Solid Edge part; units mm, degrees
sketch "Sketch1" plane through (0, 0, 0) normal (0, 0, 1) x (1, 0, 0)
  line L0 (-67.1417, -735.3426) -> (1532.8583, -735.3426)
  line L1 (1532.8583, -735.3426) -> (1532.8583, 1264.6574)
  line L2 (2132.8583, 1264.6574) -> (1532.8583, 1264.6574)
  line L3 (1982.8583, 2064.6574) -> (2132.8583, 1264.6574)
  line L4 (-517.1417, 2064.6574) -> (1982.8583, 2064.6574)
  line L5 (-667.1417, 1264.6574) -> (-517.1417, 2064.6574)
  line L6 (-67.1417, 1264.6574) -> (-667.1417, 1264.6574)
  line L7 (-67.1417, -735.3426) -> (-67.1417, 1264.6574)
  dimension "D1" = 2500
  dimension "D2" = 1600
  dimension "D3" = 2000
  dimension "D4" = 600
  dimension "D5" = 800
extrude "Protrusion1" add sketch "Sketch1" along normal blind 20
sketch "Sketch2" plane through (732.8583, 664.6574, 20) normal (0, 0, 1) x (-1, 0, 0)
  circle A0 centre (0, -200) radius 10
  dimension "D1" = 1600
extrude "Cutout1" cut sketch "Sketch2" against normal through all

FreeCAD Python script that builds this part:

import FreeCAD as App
import Part
import Sketcher

V = App.Vector

doc = App.newDocument("Part")
body = doc.addObject("PartDesign::Body", "Body")

sketch1 = doc.addObject("Sketcher::SketchObject", "Sketch")
body.addObject(sketch1)
sketch1.AttachmentSupport = (doc.XY_Plane, [""])
sketch1.MapMode = "FlatFace"
sketch1.addGeometry([
    Part.LineSegment(V(-67, 1265, 0), V(-67, -735, 0)),
    Part.LineSegment(V(-67, -735, 0), V(1533, -735, 0)),
    Part.LineSegment(V(1533, -735, 0), V(1533, 1265, 0)),
    Part.LineSegment(V(1533, 1265, 0), V(2133, 1265, 0)),
    Part.LineSegment(V(2133, 1265, 0), V(1983, 2065, 0)),
    Part.LineSegment(V(1983, 2065, 0), V(-517, 2065, 0)),
    Part.LineSegment(V(-517, 2065, 0), V(-667, 1265, 0)),
    Part.LineSegment(V(-667, 1265, 0), V(-67, 1265, 0)),
], False)
sketch1.addConstraint([
    Sketcher.Constraint("Coincident", 0, 2, 1, 1),
    Sketcher.Constraint("Coincident", 1, 2, 2, 1),
    Sketcher.Constraint("Coincident", 2, 2, 3, 1),
    Sketcher.Constraint("Coincident", 3, 2, 4, 1),
    Sketcher.Constraint("Coincident", 4, 2, 5, 1),
    Sketcher.Constraint("Coincident", 5, 2, 6, 1),
    Sketcher.Constraint("Coincident", 6, 2, 7, 1),
    Sketcher.Constraint("Coincident", 7, 2, 0, 1),
    Sketcher.Constraint("Vertical", 0),
    Sketcher.Constraint("Horizontal", 1),
    Sketcher.Constraint("Vertical", 2),
    Sketcher.Constraint("Horizontal", 3),
    Sketcher.Constraint("Horizontal", 5),
    Sketcher.Constraint("Horizontal", 7),
    Sketcher.Constraint("Horizontal", 3, 2, 6, 2),
    Sketcher.Constraint("Equal", 3, 7),
    Sketcher.Constraint("Equal", 4, 6),
    Sketcher.Constraint("DistanceX", 1, 1, 1, 2, 1600.0),
    Sketcher.Constraint("DistanceX", 3, 1, 3, 2, 600.0),
    Sketcher.Constraint("DistanceX", 5, 2, 5, 1, 2500.0),
    Sketcher.Constraint("DistanceY", 0, 2, 0, 1, 2000.0),
    Sketcher.Constraint("DistanceY", 3, 2, 4, 2, 800.0),
    Sketcher.Constraint("DistanceX", 0, 2, -1, 1, 67.1417),
    Sketcher.Constraint("DistanceY", 0, 2, -1, 1, 735.3426),
])
pad1 = doc.addObject("PartDesign::Pad", "Pad")
body.addObject(pad1)
pad1.Profile = sketch1
pad1.Length = 20

sketch2 = doc.addObject("Sketcher::SketchObject", "Sketch001")
body.addObject(sketch2)
sketch2.AttachmentSupport = (doc.XY_Plane, [""])
sketch2.MapMode = "FlatFace"
sketch2.AttachmentOffset = App.Placement(V(0, 0, 20), App.Rotation())
sketch2.addGeometry(Part.Circle(V(733, 865, 0), V(0, 0, 1), 10), False)
sketch2.addConstraint([
    Sketcher.Constraint("Diameter", 0, 20.0),
    Sketcher.Constraint("DistanceX", -1, 1, 0, 3, 732.8583),
    Sketcher.Constraint("DistanceY", -1, 1, 0, 3, 864.6574),
])
pocket1 = doc.addObject("PartDesign::Pocket", "Pocket")
body.addObject(pocket1)
pocket1.Profile = sketch2
pocket1.Type = "ThroughAll"

doc.recompute()
